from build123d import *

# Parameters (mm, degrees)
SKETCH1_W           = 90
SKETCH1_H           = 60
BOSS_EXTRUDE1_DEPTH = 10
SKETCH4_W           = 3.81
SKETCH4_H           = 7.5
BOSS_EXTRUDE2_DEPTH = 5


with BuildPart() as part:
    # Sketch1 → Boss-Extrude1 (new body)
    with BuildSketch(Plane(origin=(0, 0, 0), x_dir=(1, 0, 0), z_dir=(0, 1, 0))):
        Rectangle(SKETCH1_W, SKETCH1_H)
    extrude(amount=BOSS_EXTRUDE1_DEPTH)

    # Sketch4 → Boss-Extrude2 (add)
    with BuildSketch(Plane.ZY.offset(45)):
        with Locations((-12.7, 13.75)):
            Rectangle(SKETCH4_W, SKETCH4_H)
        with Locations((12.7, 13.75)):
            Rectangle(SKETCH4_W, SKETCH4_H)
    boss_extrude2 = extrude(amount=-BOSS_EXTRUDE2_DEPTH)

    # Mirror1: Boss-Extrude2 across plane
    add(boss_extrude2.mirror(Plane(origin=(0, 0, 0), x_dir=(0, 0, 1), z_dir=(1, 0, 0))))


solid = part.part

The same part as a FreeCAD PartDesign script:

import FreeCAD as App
import Part
import Sketcher
from FreeCAD import Vector
Q = App.Units.Quantity


def add_polygon(sketch, points):
    """Adds a closed chain of lines whose ends are joined by coincident constraints."""
    first, n = sketch.GeometryCount, len(points)
    for a, b in zip(points, points[1:] + points[:1]):
        sketch.addGeometry(Part.LineSegment(App.Vector(*a, 0), App.Vector(*b, 0)), False)
    for i in range(n):
        sketch.addConstraint(Sketcher.Constraint("Coincident", first + i, 2, first + (i + 1) % n, 1))

doc = App.newDocument("Part")
body = doc.addObject("PartDesign::Body", "Body")

sketch1 = doc.addObject("Sketcher::SketchObject", "Sketch")
body.addObject(sketch1)
sketch1.AttachmentSupport = (doc.XZ_Plane, [""])
sketch1.MapMode = "FlatFace"
add_polygon(sketch1, [(-45, -30), (-45, 30), (45, 30), (45, -30)])
sketch1.addConstraint(Sketcher.Constraint("Vertical", 0))
sketch1.addConstraint(Sketcher.Constraint("Horizontal", 1))
sketch1.addConstraint(Sketcher.Constraint("Vertical", 2))
sketch1.addConstraint(Sketcher.Constraint("Horizontal", 3))
sketch1.addConstraint(Sketcher.Constraint("Symmetric", 0, 2, 2, 2, -1, 1))
sketch1.addConstraint(Sketcher.Constraint("DistanceX", 1, 1, 1, 2, Q("90 mm")))
sketch1.addConstraint(Sketcher.Constraint("DistanceY", 0, 1, 0, 2, Q("60 mm")))
pad1 = doc.addObject("PartDesign::Pad", "Pad")
body.addObject(pad1)
pad1.Profile = sketch1
pad1.Length = 10
pad1.Reversed = True

sketch2 = doc.addObject("Sketcher::SketchObject", "Sketch001")
body.addObject(sketch2)
sketch2.AttachmentSupport = (doc.YZ_Plane, [""])
sketch2.MapMode = "FlatFace"
sketch2.AttachmentOffset = App.Placement(Vector(0, 0, -45), App.Rotation())
add_polygon(sketch2, [(17.5, -14.605), (10, -14.605), (10, -10.795), (17.5, -10.795)])
add_polygon(sketch2, [(17.5, 10.795), (10, 10.795), (10, 14.605), (17.5, 14.605)])
sketch2.addConstraint(Sketcher.Constraint("Horizontal", 0))
sketch2.addConstraint(Sketcher.Constraint("Vertical", 1))
sketch2.addConstraint(Sketcher.Constraint("Horizontal", 2))
sketch2.addConstraint(Sketcher.Constraint("Vertical", 3))
sketch2.addConstraint(Sketcher.Constraint("Horizontal", 4))
sketch2.addConstraint(Sketcher.Constraint("Vertical", 5))
sketch2.addConstraint(Sketcher.Constraint("Horizontal", 6))
sketch2.addConstraint(Sketcher.Constraint("Vertical", 7))
sketch2.addConstraint(Sketcher.Constraint("Symmetric", 1, 2, 4, 2, -1))
sketch2.addConstraint(Sketcher.Constraint("Symmetric", 3, 2, 6, 2, -1))
sketch2.addConstraint(Sketcher.Constraint("DistanceX", 0, 2, 0, 1, Q("7.5 mm")))
sketch2.addConstraint(Sketcher.Constraint("DistanceX", -1, 1, 0, 2, Q("10 mm")))
sketch2.addConstraint(Sketcher.Constraint("DistanceY", 1, 1, 1, 2, Q("3.81 mm")))
sketch2.addConstraint(Sketcher.Constraint("DistanceY", 0, 2, 4, 2, Q("25.4 mm")))
pad2 = doc.addObject("PartDesign::Pad", "Pad001")
body.addObject(pad2)
pad2.Profile = sketch2
pad2.Length = 5
doc.recompute()

mirrored = doc.addObject("PartDesign::Mirrored", "Mirrored")
body.addObject(mirrored)
mirrored.Originals = [pad2]
mirrored.MirrorPlane = (doc.YZ_Plane, [""])
body.Tip = mirrored

doc.recompute()
